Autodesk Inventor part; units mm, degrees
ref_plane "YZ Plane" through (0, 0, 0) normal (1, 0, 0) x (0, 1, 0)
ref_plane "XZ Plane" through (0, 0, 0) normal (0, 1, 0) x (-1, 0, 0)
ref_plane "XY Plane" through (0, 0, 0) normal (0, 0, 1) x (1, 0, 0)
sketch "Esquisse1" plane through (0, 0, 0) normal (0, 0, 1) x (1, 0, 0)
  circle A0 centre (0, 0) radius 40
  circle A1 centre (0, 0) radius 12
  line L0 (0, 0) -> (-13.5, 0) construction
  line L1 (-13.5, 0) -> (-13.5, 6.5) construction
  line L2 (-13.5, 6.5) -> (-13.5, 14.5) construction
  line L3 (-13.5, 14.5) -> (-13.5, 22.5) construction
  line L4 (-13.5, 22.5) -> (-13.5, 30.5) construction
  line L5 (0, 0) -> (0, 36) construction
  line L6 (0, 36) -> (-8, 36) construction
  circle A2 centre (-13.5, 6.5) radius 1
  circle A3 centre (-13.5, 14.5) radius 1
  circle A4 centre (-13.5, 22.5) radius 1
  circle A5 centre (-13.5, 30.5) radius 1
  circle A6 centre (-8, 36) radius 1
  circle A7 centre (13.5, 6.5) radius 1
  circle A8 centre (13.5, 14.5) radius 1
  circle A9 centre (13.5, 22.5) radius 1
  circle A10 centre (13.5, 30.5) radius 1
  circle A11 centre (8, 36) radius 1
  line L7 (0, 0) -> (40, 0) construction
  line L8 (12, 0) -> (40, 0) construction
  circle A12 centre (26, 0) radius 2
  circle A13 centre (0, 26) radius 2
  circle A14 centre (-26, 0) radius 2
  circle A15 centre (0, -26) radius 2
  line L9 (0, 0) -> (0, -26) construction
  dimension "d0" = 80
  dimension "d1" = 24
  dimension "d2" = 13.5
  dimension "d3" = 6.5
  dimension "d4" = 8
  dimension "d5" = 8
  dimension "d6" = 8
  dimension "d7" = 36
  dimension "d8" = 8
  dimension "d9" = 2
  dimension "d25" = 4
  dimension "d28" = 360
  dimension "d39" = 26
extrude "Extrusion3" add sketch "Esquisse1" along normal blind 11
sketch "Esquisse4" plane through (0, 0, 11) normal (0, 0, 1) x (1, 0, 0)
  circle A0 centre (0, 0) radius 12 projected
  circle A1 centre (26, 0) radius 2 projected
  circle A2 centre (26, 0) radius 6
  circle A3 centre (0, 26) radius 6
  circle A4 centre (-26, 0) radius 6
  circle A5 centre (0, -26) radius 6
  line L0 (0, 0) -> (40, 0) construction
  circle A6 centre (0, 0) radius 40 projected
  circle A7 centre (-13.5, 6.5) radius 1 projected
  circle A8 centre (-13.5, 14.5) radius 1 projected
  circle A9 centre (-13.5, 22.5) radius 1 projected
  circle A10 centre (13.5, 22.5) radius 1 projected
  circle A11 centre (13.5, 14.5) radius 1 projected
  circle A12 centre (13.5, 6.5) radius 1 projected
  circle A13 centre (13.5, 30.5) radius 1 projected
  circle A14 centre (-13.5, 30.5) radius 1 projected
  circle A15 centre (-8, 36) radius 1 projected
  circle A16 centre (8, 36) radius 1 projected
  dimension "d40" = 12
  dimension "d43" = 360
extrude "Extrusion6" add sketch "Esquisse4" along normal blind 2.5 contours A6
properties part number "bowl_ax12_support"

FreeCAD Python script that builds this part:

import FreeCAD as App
import Part
import Sketcher

doc = App.newDocument("Part")
params = doc.addObject("Spreadsheet::Sheet", "Params")
for row, (alias, value) in enumerate([
    ("sketch1_diameter", "80 mm"),
    ("sketch1_diameter2", "4 mm"),
    ("sketch1_diameter3", "2 mm"),
    ("sketch1_diameter4", "24 mm"),
    ("pad1_length", "11 mm"),
    ("sketch2_diameter", "12 mm"),
    ("sketch2_diameter2", "24 mm"),
    ("sketch2_diameter3", "80 mm"),
    ("sketch2_diameter4", "2 mm"),
    ("pad2_length", "2.5 mm"),
], start=1):
    params.set(f"A{row}", alias)
    params.set(f"B{row}", "=" + value)
    params.setAlias(f"B{row}", alias)

body = doc.addObject("PartDesign::Body", "Body")

sketch1 = body.newObject("Sketcher::SketchObject", "Sketch")
sketch1.AttachmentSupport = (doc.getObject("XY_Plane"), [""])
sketch1.MapMode = "FlatFace"
sketch1.addGeometry([
    Part.Circle(App.Vector(0, 0, 0), App.Vector(0, 0, 1), 40),
    Part.Circle(App.Vector(0, -26, 0), App.Vector(0, 0, 1), 2),
    Part.Circle(App.Vector(-26, 0, 0), App.Vector(0, 0, 1), 2),
    Part.Circle(App.Vector(-13.5, 6.5, 0), App.Vector(0, 0, 1), 1),
    Part.Circle(App.Vector(-13.5, 14.5, 0), App.Vector(0, 0, 1), 1),
    Part.Circle(App.Vector(-13.5, 22.5, 0), App.Vector(0, 0, 1), 1),
    Part.Circle(App.Vector(-13.5, 30.5, 0), App.Vector(0, 0, 1), 1),
    Part.Circle(App.Vector(-8, 36, 0), App.Vector(0, 0, 1), 1),
    Part.Circle(App.Vector(0, 0, 0), App.Vector(0, 0, 1), 12),
    Part.Circle(App.Vector(13.5, 6.5, 0), App.Vector(0, 0, 1), 1),
    Part.Circle(App.Vector(13.5, 14.5, 0), App.Vector(0, 0, 1), 1),
    Part.Circle(App.Vector(26, 0, 0), App.Vector(0, 0, 1), 2),
    Part.Circle(App.Vector(0, 26, 0), App.Vector(0, 0, 1), 2),
    Part.Circle(App.Vector(13.5, 22.5, 0), App.Vector(0, 0, 1), 1),
    Part.Circle(App.Vector(8, 36, 0), App.Vector(0, 0, 1), 1),
    Part.Circle(App.Vector(13.5, 30.5, 0), App.Vector(0, 0, 1), 1),
], False)
sketch1.addConstraint([
    Sketcher.Constraint("Coincident", 0, 3, -1, 1),
    Sketcher.Constraint("Coincident", 8, 3, -1, 1),
    Sketcher.Constraint("Equal", 1, 2),
    Sketcher.Constraint("Equal", 3, 4),
    Sketcher.Constraint("Equal", 4, 5),
    Sketcher.Constraint("Equal", 5, 6),
    Sketcher.Constraint("Equal", 6, 7),
    Sketcher.Constraint("Equal", 7, 9),
    Sketcher.Constraint("Equal", 9, 10),
    Sketcher.Constraint("Equal", 2, 11),
    Sketcher.Constraint("Equal", 11, 12),
    Sketcher.Constraint("Equal", 10, 13),
    Sketcher.Constraint("Equal", 13, 14),
    Sketcher.Constraint("Equal", 14, 15),
    Sketcher.Constraint("Symmetric", 2, 3, 11, 3, -1, 1),
    Sketcher.Constraint("Symmetric", 1, 3, 12, 3, -1, 1),
    Sketcher.Constraint("Symmetric", 3, 3, 9, 3, -2),
    Sketcher.Constraint("Symmetric", 4, 3, 10, 3, -2),
    Sketcher.Constraint("Symmetric", 5, 3, 13, 3, -2),
    Sketcher.Constraint("Symmetric", 7, 3, 14, 3, -2),
    Sketcher.Constraint("Symmetric", 6, 3, 15, 3, -2),
    Sketcher.Constraint("PointOnObject", 1, 3, -2),
    Sketcher.Constraint("PointOnObject", 2, 3, -1),
    Sketcher.Constraint("Vertical", 3, 3, 4, 3),
    Sketcher.Constraint("Vertical", 4, 3, 5, 3),
    Sketcher.Constraint("Vertical", 5, 3, 6, 3),
    Sketcher.Constraint("Diameter", 0, 80.0),
    Sketcher.Constraint("Diameter", 1, 4.0),
    Sketcher.Constraint("Diameter", 3, 2.0),
    Sketcher.Constraint("Diameter", 8, 24.0),
    Sketcher.Constraint("DistanceY", 1, 3, -1, 1, 26.0),
    Sketcher.Constraint("DistanceX", 2, 3, -1, 1, 26.0),
    Sketcher.Constraint("DistanceX", 7, 3, -1, 1, 8.0),
    Sketcher.Constraint("DistanceY", -1, 1, 7, 3, 36.0),
    Sketcher.Constraint("DistanceY", 3, 3, 4, 3, 8.0),
    Sketcher.Constraint("DistanceY", 4, 3, 5, 3, 8.0),
    Sketcher.Constraint("DistanceY", 5, 3, 6, 3, 8.0),
    Sketcher.Constraint("DistanceX", 3, 3, -1, 1, 13.5),
    Sketcher.Constraint("DistanceY", -1, 1, 3, 3, 6.5),
])
sketch1.setExpression("Constraints[26]", "Params.sketch1_diameter")
sketch1.setExpression("Constraints[27]", "Params.sketch1_diameter2")
sketch1.setExpression("Constraints[28]", "Params.sketch1_diameter3")
sketch1.setExpression("Constraints[29]", "Params.sketch1_diameter4")
pad1 = body.newObject("PartDesign::Pad", "Pad")
pad1.Profile = sketch1
pad1.setExpression("Length", "Params.pad1_length")

sketch2 = body.newObject("Sketcher::SketchObject", "Sketch001")
sketch2.AttachmentSupport = (doc.getObject("XY_Plane"), [""])
sketch2.MapMode = "FlatFace"
sketch2.AttachmentOffset = App.Placement(App.Vector(0, 0, 11), App.Rotation())
sketch2.addGeometry([
    Part.Circle(App.Vector(0, 0, 0), App.Vector(0, 0, 1), 40),
    Part.Circle(App.Vector(0, -26, 0), App.Vector(0, 0, 1), 6),
    Part.Circle(App.Vector(-26, 0, 0), App.Vector(0, 0, 1), 6),
    Part.Circle(App.Vector(-13.5, 6.5, 0), App.Vector(0, 0, 1), 1),
    Part.Circle(App.Vector(-13.5, 14.5, 0), App.Vector(0, 0, 1), 1),
    Part.Circle(App.Vector(-13.5, 22.5, 0), App.Vector(0, 0, 1), 1),
    Part.Circle(App.Vector(-13.5, 30.5, 0), App.Vector(0, 0, 1), 1),
    Part.Circle(App.Vector(-8, 36, 0), App.Vector(0, 0, 1), 1),
    Part.Circle(App.Vector(0, 0, 0), App.Vector(0, 0, 1), 12),
    Part.Circle(App.Vector(13.5, 6.5, 0), App.Vector(0, 0, 1), 1),
    Part.Circle(App.Vector(13.5, 14.5, 0), App.Vector(0, 0, 1), 1),
    Part.Circle(App.Vector(26, 0, 0), App.Vector(0, 0, 1), 6),
    Part.Circle(App.Vector(0, 26, 0), App.Vector(0, 0, 1), 6),
    Part.Circle(App.Vector(13.5, 22.5, 0), App.Vector(0, 0, 1), 1),
    Part.Circle(App.Vector(8, 36, 0), App.Vector(0, 0, 1), 1),
    Part.Circle(App.Vector(13.5, 30.5, 0), App.Vector(0, 0, 1), 1),
], False)
sketch2.addConstraint([
    Sketcher.Constraint("Coincident", 0, 3, -1, 1),
    Sketcher.Constraint("Coincident", 8, 3, -1, 1),
    Sketcher.Constraint("Equal", 1, 2),
    Sketcher.Constraint("Equal", 3, 4),
    Sketcher.Constraint("Equal", 4, 5),
    Sketcher.Constraint("Equal", 5, 6),
    Sketcher.Constraint("Equal", 6, 7),
    Sketcher.Constraint("Equal", 7, 9),
    Sketcher.Constraint("Equal", 9, 10),
    Sketcher.Constraint("Equal", 2, 11),
    Sketcher.Constraint("Equal", 11, 12),
    Sketcher.Constraint("Equal", 10, 13),
    Sketcher.Constraint("Equal", 13, 14),
    Sketcher.Constraint("Equal", 14, 15),
    Sketcher.Constraint("Symmetric", 2, 3, 11, 3, -1, 1),
    Sketcher.Constraint("Symmetric", 1, 3, 12, 3, -1, 1),
    Sketcher.Constraint("Symmetric", 3, 3, 9, 3, -2),
    Sketcher.Constraint("Symmetric", 4, 3, 10, 3, -2),
    Sketcher.Constraint("Symmetric", 5, 3, 13, 3, -2),
    Sketcher.Constraint("Symmetric", 7, 3, 14, 3, -2),
    Sketcher.Constraint("Symmetric", 6, 3, 15, 3, -2),
    Sketcher.Constraint("PointOnObject", 1, 3, -2),
    Sketcher.Constraint("PointOnObject", 2, 3, -1),
    Sketcher.Constraint("Vertical", 3, 3, 4, 3),
    Sketcher.Constraint("Vertical", 4, 3, 5, 3),
    Sketcher.Constraint("Vertical", 5, 3, 6, 3),
    Sketcher.Constraint("Diameter", 1, 12.0),
    Sketcher.Constraint("Diameter", 8, 24.0),
    Sketcher.Constraint("Diameter", 0, 80.0),
    Sketcher.Constraint("Diameter", 3, 2.0),
    Sketcher.Constraint("DistanceY", 1, 3, -1, 1, 26.0),
    Sketcher.Constraint("DistanceX", 2, 3, -1, 1, 26.0),
    Sketcher.Constraint("DistanceX", 7, 3, -1, 1, 8.0),
    Sketcher.Constraint("DistanceY", -1, 1, 7, 3, 36.0),
    Sketcher.Constraint("DistanceY", 3, 3, 4, 3, 8.0),
    Sketcher.Constraint("DistanceY", 4, 3, 5, 3, 8.0),
    Sketcher.Constraint("DistanceY", 5, 3, 6, 3, 8.0),
    Sketcher.Constraint("DistanceX", 3, 3, 9, 3, 27.0),
    Sketcher.Constraint("DistanceY", -1, 1, 3, 3, 6.5),
])
sketch2.setExpression("Constraints[26]", "Params.sketch2_diameter")
sketch2.setExpression("Constraints[27]", "Params.sketch2_diameter2")
sketch2.setExpression("Constraints[28]", "Params.sketch2_diameter3")
sketch2.setExpression("Constraints[29]", "Params.sketch2_diameter4")
pad2 = body.newObject("PartDesign::Pad", "Pad001")
pad2.Profile = sketch2
pad2.setExpression("Length", "Params.pad2_length")

doc.recompute()
